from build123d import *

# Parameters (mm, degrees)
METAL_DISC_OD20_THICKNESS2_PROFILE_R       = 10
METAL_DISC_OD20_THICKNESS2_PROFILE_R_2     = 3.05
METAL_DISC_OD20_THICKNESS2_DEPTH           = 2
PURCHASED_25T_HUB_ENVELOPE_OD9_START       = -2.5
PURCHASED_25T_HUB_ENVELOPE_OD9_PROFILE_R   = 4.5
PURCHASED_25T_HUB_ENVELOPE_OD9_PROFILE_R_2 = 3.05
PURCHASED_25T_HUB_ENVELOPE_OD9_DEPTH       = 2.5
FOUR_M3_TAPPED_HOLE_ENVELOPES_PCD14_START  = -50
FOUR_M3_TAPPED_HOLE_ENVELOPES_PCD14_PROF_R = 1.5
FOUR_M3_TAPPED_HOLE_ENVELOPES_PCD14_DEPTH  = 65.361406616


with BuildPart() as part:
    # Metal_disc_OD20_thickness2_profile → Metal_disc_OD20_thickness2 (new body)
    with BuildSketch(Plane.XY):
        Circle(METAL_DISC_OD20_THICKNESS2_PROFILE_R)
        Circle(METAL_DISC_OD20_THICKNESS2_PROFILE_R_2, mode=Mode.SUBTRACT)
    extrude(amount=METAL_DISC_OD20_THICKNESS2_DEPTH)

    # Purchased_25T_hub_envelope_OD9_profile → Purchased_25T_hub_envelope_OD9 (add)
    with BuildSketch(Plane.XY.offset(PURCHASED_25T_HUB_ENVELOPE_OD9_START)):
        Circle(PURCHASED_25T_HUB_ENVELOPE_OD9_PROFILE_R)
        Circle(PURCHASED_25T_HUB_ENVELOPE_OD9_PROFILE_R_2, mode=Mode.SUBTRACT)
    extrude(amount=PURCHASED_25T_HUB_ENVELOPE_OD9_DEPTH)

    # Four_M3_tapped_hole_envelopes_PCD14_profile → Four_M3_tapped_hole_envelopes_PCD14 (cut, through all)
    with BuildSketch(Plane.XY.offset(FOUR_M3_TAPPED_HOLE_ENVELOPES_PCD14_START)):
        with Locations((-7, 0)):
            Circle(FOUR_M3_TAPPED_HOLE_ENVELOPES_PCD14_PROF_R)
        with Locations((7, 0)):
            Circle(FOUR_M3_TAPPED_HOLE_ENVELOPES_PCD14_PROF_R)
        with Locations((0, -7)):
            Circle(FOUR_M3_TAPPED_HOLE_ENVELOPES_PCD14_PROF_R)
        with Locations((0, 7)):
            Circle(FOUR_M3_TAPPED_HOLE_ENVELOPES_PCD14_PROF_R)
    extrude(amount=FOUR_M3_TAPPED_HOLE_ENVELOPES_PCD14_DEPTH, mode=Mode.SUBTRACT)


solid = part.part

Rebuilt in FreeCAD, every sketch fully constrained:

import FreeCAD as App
import Part
import Sketcher
Q = App.Units.Quantity

doc = App.newDocument("Part")
body = doc.addObject("PartDesign::Body", "Body")

# Sketch on XY plane
sketch1 = body.newObject("Sketcher::SketchObject", "Sketch")
sketch1.AttachmentSupport = (doc.getObject("XY_Plane"), [""])
sketch1.MapMode = "FlatFace"
sketch1.addGeometry([
    Part.Circle(App.Vector(0, 0, 0), App.Vector(0, 0, 1), 10),
    Part.Circle(App.Vector(0, 0, 0), App.Vector(0, 0, 1), 3),
], False)
sketch1.addConstraint([
    Sketcher.Constraint("Coincident", 0, 3, -1, 1),
    Sketcher.Constraint("Coincident", 1, 3, -1, 1),
    Sketcher.Constraint("Diameter", 0, Q("20 mm")),
    Sketcher.Constraint("Diameter", 1, Q("6.1 mm")),
])
pad1 = body.newObject("PartDesign::Pad", "Pad")
pad1.Profile = sketch1
pad1.Length = 2

# Sketch on XY plane
sketch2 = body.newObject("Sketcher::SketchObject", "Sketch001")
sketch2.AttachmentSupport = (doc.getObject("XY_Plane"), [""])
sketch2.MapMode = "FlatFace"
sketch2.AttachmentOffset = App.Placement(App.Vector(0, 0, -2.5), App.Rotation())
sketch2.addGeometry([
    Part.Circle(App.Vector(0, 0, 0), App.Vector(0, 0, 1), 4.5),
    Part.Circle(App.Vector(0, 0, 0), App.Vector(0, 0, 1), 3),
], False)
sketch2.addConstraint([
    Sketcher.Constraint("Coincident", 0, 3, -1, 1),
    Sketcher.Constraint("Coincident", 1, 3, -1, 1),
    Sketcher.Constraint("Diameter", 0, Q("9 mm")),
    Sketcher.Constraint("Diameter", 1, Q("6.1 mm")),
])
pad2 = body.newObject("PartDesign::Pad", "Pad001")
pad2.Profile = sketch2
pad2.Length = 2.5

# Sketch on XY plane
sketch3 = body.newObject("Sketcher::SketchObject", "Sketch002")
sketch3.AttachmentSupport = (doc.getObject("XY_Plane"), [""])
sketch3.MapMode = "FlatFace"
sketch3.AttachmentOffset = App.Placement(App.Vector(0, 0, -50), App.Rotation())
sketch3.addGeometry([
    Part.Circle(App.Vector(-7, 0, 0), App.Vector(0, 0, 1), 1.5),
    Part.Circle(App.Vector(7, 0, 0), App.Vector(0, 0, 1), 1.5),
    Part.Circle(App.Vector(0, -7, 0), App.Vector(0, 0, 1), 1.5),
    Part.Circle(App.Vector(0, 7, 0), App.Vector(0, 0, 1), 1.5),
], False)
sketch3.addConstraint([
    Sketcher.Constraint("Equal", 0, 1),
    Sketcher.Constraint("Equal", 1, 2),
    Sketcher.Constraint("Equal", 2, 3),
    Sketcher.Constraint("Symmetric", 0, 3, 1, 3, -1, 1),
    Sketcher.Constraint("Symmetric", 2, 3, 3, 3, -1, 1),
    Sketcher.Constraint("PointOnObject", 0, 3, -1),
    Sketcher.Constraint("PointOnObject", 2, 3, -2),
    Sketcher.Constraint("Diameter", 0, Q("3 mm")),
    Sketcher.Constraint("DistanceX", 0, 3, -1, 1, Q("7 mm")),
    Sketcher.Constraint("DistanceY", 2, 3, -1, 1, Q("7 mm")),
])
pocket1 = body.newObject("PartDesign::Pocket", "Pocket")
pocket1.Profile = sketch3
pocket1.Type = "ThroughAll"
pocket1.Reversed = True

doc.recompute()
